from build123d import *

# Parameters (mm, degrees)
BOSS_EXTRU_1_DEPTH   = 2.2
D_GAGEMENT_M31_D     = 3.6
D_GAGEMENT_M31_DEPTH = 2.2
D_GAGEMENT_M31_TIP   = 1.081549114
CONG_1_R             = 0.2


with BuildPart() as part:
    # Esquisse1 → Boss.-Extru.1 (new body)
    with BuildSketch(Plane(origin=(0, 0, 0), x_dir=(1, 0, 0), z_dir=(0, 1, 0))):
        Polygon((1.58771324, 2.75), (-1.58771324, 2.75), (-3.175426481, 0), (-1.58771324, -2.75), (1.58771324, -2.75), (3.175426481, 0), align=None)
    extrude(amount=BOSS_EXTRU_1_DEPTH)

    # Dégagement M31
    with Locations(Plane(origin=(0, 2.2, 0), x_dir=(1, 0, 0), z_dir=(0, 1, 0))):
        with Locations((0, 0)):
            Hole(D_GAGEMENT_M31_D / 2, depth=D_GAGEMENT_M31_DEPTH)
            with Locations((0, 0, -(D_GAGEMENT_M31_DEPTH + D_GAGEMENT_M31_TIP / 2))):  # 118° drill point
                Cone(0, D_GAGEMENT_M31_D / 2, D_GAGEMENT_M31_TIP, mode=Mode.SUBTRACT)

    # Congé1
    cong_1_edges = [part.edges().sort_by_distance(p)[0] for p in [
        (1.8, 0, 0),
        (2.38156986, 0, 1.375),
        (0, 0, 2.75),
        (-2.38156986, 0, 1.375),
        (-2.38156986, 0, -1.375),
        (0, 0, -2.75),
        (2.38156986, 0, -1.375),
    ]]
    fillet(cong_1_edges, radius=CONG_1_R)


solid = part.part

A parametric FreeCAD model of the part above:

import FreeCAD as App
import Part
import Sketcher
from FreeCAD import Vector
Q = App.Units.Quantity


def edges_at(feature, points):
    """Names of the edges that pass closest to the given points."""
    edges = feature.Shape.Edges
    near = lambda p: min(range(len(edges)), key=lambda i: edges[i].distToShape(Part.Vertex(*p))[0])
    return sorted({f"Edge{near(p) + 1}" for p in points})

doc = App.newDocument("Part")
body = doc.addObject("PartDesign::Body", "Body")

# Sketch on XZ plane
sketch1 = body.newObject("Sketcher::SketchObject", "Sketch")
sketch1.AttachmentSupport = (doc.getObject("XZ_Plane"), [""])
sketch1.MapMode = "FlatFace"
sketch1.addGeometry([
    Part.LineSegment(Vector(1.6, -2.8, 0), Vector(-1.6, -2.8, 0)),  # 0
    Part.LineSegment(Vector(-1.6, -2.8, 0), Vector(-3.2, 0, 0)),  # 1
    Part.LineSegment(Vector(-3.2, 0, 0), Vector(-1.6, 2.8, 0)),  # 2
    Part.LineSegment(Vector(-1.6, 2.8, 0), Vector(1.6, 2.8, 0)),  # 3
    Part.LineSegment(Vector(1.6, 2.8, 0), Vector(3.2, 0, 0)),  # 4
    Part.LineSegment(Vector(3.2, 0, 0), Vector(1.6, -2.8, 0)),  # 5
], False)
sketch1.addConstraint([
    Sketcher.Constraint("Coincident", 0, 2, 1, 1),
    Sketcher.Constraint("Coincident", 1, 2, 2, 1),
    Sketcher.Constraint("Coincident", 2, 2, 3, 1),
    Sketcher.Constraint("Coincident", 3, 2, 4, 1),
    Sketcher.Constraint("Coincident", 4, 2, 5, 1),
    Sketcher.Constraint("Coincident", 5, 2, 0, 1),
    Sketcher.Constraint("Horizontal", 0),
    Sketcher.Constraint("Horizontal", 3),
    Sketcher.Constraint("Symmetric", 0, 2, 3, 2, -1, 1),
    Sketcher.Constraint("Symmetric", 1, 2, 4, 2, -1, 1),
    Sketcher.Constraint("PointOnObject", 1, 2, -1),
    Sketcher.Constraint("Parallel", 2, 5),
    Sketcher.Constraint("Vertical", 0, 2, 2, 2),
    Sketcher.Constraint("Angle", 1, Q("120 deg")),
    Sketcher.Constraint("DistanceY", 0, 2, 2, 2, 5.5),
    Sketcher.Constraint("DistanceX", 0, 2, 0, 1, 3.175426),
])
pad1 = body.newObject("PartDesign::Pad", "Pad")
pad1.Profile = sketch1
pad1.Length = 2.2
pad1.Reversed = True

# Sketch on XZ plane
sketch2 = body.newObject("Sketcher::SketchObject", "Sketch001")
sketch2.AttachmentSupport = (doc.getObject("XZ_Plane"), [""])
sketch2.MapMode = "FlatFace"
sketch2.AttachmentOffset = App.Placement(Vector(0, 0, -2.2), App.Rotation())
sketch2.addGeometry(Part.Circle(Vector(0, 0, 0), Vector(0, 0, 1), 1.8), False)
sketch2.addConstraint([
    Sketcher.Constraint("Coincident", 0, 3, -1, 1),
    Sketcher.Constraint("Diameter", 0, 3.6),
])
doc.recompute()
hole = body.newObject("PartDesign::Hole", "Hole")
hole.Profile = sketch2
hole.ThreadType = "None"
hole.Diameter = 3.6
hole.DepthType = "Dimension"
hole.Depth = 2.2
hole.DrillPoint = "Angled"
hole.DrillPointAngle = 118
hole.Reversed = True
doc.recompute()

fillet = body.newObject("PartDesign::Fillet", "Fillet")
fillet.Base = (hole, edges_at(hole, [
    (1.8, 0, 0),
    (2.382, 0, 1.375),
    (0, 0, 2.75),
    (-2.382, 0, 1.375),
    (-2.382, 0, -1.375),
    (0, 0, -2.75),
    (2.382, 0, -1.375),
]))
fillet.Radius = 0.2

doc.recompute()
